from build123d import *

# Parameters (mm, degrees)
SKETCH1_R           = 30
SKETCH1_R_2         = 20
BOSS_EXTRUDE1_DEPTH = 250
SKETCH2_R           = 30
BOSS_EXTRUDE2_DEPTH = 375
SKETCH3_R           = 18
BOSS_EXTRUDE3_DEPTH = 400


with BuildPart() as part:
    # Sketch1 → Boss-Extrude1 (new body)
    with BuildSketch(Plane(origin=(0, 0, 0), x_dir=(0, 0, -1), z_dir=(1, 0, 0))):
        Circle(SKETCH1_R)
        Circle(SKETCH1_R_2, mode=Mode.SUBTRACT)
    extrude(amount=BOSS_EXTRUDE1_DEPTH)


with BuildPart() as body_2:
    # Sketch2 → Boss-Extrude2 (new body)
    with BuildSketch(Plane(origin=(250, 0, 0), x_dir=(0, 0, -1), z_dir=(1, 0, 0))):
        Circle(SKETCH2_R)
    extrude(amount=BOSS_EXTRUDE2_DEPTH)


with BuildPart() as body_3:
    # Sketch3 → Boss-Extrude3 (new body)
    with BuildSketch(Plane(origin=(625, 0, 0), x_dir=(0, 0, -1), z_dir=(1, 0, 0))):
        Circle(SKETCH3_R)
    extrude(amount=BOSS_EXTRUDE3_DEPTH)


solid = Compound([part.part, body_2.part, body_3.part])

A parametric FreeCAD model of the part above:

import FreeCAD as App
import Part
import Sketcher
from FreeCAD import Vector

doc = App.newDocument("Part")
params = doc.addObject("Spreadsheet::Sheet", "Params")
for row, (alias, value) in enumerate([
    ("sketch1_diameter", "60 mm"),
    ("sketch1_diameter2", "40 mm"),
    ("pad1_length", "250 mm"),
    ("sketch2_diameter", "60 mm"),
    ("pad2_length", "375 mm"),
    ("sketch3_diameter", "36 mm"),
    ("pad3_length", "400 mm"),
], start=1):
    params.set(f"A{row}", alias)
    params.set(f"B{row}", "=" + value)
    params.setAlias(f"B{row}", alias)

body = doc.addObject("PartDesign::Body", "Body")

sketch1 = body.newObject("Sketcher::SketchObject", "Sketch")
sketch1.AttachmentSupport = (doc.getObject("YZ_Plane"), [""])
sketch1.MapMode = "FlatFace"
sketch1.addGeometry([
    Part.Circle(Vector(0, 0, 0), Vector(0, 0, 1), 30),
    Part.Circle(Vector(0, 0, 0), Vector(0, 0, 1), 20),
], False)
sketch1.addConstraint([
    Sketcher.Constraint("Coincident", 0, 3, -1, 1),
    Sketcher.Constraint("Coincident", 1, 3, -1, 1),
    Sketcher.Constraint("Diameter", 0, 60.0),
    Sketcher.Constraint("Diameter", 1, 40.0),
])
sketch1.setExpression("Constraints[2]", "Params.sketch1_diameter")
sketch1.setExpression("Constraints[3]", "Params.sketch1_diameter2")
pad1 = body.newObject("PartDesign::Pad", "Pad")
pad1.Profile = sketch1
pad1.setExpression("Length", "Params.pad1_length")
body2 = doc.addObject("PartDesign::Body", "Body001")

sketch2 = body2.newObject("Sketcher::SketchObject", "Sketch001")
sketch2.AttachmentSupport = (doc.getObject("YZ_Plane001"), [""])
sketch2.MapMode = "FlatFace"
sketch2.AttachmentOffset = App.Placement(Vector(0, 0, 250), App.Rotation())
sketch2.addGeometry(Part.Circle(Vector(0, 0, 0), Vector(0, 0, 1), 30), False)
sketch2.addConstraint([
    Sketcher.Constraint("Coincident", 0, 3, -1, 1),
    Sketcher.Constraint("Diameter", 0, 60.0),
])
sketch2.setExpression("Constraints[1]", "Params.sketch2_diameter")
pad2 = body2.newObject("PartDesign::Pad", "Pad001")
pad2.Profile = sketch2
pad2.setExpression("Length", "Params.pad2_length")
body3 = doc.addObject("PartDesign::Body", "Body002")

sketch3 = body3.newObject("Sketcher::SketchObject", "Sketch002")
sketch3.AttachmentSupport = (doc.getObject("YZ_Plane002"), [""])
sketch3.MapMode = "FlatFace"
sketch3.AttachmentOffset = App.Placement(Vector(0, 0, 625), App.Rotation())
sketch3.addGeometry(Part.Circle(Vector(0, 0, 0), Vector(0, 0, 1), 18), False)
sketch3.addConstraint([
    Sketcher.Constraint("Coincident", 0, 3, -1, 1),
    Sketcher.Constraint("Diameter", 0, 36.0),
])
sketch3.setExpression("Constraints[1]", "Params.sketch3_diameter")
pad3 = body3.newObject("PartDesign::Pad", "Pad002")
pad3.Profile = sketch3
pad3.setExpression("Length", "Params.pad3_length")

doc.recompute()
